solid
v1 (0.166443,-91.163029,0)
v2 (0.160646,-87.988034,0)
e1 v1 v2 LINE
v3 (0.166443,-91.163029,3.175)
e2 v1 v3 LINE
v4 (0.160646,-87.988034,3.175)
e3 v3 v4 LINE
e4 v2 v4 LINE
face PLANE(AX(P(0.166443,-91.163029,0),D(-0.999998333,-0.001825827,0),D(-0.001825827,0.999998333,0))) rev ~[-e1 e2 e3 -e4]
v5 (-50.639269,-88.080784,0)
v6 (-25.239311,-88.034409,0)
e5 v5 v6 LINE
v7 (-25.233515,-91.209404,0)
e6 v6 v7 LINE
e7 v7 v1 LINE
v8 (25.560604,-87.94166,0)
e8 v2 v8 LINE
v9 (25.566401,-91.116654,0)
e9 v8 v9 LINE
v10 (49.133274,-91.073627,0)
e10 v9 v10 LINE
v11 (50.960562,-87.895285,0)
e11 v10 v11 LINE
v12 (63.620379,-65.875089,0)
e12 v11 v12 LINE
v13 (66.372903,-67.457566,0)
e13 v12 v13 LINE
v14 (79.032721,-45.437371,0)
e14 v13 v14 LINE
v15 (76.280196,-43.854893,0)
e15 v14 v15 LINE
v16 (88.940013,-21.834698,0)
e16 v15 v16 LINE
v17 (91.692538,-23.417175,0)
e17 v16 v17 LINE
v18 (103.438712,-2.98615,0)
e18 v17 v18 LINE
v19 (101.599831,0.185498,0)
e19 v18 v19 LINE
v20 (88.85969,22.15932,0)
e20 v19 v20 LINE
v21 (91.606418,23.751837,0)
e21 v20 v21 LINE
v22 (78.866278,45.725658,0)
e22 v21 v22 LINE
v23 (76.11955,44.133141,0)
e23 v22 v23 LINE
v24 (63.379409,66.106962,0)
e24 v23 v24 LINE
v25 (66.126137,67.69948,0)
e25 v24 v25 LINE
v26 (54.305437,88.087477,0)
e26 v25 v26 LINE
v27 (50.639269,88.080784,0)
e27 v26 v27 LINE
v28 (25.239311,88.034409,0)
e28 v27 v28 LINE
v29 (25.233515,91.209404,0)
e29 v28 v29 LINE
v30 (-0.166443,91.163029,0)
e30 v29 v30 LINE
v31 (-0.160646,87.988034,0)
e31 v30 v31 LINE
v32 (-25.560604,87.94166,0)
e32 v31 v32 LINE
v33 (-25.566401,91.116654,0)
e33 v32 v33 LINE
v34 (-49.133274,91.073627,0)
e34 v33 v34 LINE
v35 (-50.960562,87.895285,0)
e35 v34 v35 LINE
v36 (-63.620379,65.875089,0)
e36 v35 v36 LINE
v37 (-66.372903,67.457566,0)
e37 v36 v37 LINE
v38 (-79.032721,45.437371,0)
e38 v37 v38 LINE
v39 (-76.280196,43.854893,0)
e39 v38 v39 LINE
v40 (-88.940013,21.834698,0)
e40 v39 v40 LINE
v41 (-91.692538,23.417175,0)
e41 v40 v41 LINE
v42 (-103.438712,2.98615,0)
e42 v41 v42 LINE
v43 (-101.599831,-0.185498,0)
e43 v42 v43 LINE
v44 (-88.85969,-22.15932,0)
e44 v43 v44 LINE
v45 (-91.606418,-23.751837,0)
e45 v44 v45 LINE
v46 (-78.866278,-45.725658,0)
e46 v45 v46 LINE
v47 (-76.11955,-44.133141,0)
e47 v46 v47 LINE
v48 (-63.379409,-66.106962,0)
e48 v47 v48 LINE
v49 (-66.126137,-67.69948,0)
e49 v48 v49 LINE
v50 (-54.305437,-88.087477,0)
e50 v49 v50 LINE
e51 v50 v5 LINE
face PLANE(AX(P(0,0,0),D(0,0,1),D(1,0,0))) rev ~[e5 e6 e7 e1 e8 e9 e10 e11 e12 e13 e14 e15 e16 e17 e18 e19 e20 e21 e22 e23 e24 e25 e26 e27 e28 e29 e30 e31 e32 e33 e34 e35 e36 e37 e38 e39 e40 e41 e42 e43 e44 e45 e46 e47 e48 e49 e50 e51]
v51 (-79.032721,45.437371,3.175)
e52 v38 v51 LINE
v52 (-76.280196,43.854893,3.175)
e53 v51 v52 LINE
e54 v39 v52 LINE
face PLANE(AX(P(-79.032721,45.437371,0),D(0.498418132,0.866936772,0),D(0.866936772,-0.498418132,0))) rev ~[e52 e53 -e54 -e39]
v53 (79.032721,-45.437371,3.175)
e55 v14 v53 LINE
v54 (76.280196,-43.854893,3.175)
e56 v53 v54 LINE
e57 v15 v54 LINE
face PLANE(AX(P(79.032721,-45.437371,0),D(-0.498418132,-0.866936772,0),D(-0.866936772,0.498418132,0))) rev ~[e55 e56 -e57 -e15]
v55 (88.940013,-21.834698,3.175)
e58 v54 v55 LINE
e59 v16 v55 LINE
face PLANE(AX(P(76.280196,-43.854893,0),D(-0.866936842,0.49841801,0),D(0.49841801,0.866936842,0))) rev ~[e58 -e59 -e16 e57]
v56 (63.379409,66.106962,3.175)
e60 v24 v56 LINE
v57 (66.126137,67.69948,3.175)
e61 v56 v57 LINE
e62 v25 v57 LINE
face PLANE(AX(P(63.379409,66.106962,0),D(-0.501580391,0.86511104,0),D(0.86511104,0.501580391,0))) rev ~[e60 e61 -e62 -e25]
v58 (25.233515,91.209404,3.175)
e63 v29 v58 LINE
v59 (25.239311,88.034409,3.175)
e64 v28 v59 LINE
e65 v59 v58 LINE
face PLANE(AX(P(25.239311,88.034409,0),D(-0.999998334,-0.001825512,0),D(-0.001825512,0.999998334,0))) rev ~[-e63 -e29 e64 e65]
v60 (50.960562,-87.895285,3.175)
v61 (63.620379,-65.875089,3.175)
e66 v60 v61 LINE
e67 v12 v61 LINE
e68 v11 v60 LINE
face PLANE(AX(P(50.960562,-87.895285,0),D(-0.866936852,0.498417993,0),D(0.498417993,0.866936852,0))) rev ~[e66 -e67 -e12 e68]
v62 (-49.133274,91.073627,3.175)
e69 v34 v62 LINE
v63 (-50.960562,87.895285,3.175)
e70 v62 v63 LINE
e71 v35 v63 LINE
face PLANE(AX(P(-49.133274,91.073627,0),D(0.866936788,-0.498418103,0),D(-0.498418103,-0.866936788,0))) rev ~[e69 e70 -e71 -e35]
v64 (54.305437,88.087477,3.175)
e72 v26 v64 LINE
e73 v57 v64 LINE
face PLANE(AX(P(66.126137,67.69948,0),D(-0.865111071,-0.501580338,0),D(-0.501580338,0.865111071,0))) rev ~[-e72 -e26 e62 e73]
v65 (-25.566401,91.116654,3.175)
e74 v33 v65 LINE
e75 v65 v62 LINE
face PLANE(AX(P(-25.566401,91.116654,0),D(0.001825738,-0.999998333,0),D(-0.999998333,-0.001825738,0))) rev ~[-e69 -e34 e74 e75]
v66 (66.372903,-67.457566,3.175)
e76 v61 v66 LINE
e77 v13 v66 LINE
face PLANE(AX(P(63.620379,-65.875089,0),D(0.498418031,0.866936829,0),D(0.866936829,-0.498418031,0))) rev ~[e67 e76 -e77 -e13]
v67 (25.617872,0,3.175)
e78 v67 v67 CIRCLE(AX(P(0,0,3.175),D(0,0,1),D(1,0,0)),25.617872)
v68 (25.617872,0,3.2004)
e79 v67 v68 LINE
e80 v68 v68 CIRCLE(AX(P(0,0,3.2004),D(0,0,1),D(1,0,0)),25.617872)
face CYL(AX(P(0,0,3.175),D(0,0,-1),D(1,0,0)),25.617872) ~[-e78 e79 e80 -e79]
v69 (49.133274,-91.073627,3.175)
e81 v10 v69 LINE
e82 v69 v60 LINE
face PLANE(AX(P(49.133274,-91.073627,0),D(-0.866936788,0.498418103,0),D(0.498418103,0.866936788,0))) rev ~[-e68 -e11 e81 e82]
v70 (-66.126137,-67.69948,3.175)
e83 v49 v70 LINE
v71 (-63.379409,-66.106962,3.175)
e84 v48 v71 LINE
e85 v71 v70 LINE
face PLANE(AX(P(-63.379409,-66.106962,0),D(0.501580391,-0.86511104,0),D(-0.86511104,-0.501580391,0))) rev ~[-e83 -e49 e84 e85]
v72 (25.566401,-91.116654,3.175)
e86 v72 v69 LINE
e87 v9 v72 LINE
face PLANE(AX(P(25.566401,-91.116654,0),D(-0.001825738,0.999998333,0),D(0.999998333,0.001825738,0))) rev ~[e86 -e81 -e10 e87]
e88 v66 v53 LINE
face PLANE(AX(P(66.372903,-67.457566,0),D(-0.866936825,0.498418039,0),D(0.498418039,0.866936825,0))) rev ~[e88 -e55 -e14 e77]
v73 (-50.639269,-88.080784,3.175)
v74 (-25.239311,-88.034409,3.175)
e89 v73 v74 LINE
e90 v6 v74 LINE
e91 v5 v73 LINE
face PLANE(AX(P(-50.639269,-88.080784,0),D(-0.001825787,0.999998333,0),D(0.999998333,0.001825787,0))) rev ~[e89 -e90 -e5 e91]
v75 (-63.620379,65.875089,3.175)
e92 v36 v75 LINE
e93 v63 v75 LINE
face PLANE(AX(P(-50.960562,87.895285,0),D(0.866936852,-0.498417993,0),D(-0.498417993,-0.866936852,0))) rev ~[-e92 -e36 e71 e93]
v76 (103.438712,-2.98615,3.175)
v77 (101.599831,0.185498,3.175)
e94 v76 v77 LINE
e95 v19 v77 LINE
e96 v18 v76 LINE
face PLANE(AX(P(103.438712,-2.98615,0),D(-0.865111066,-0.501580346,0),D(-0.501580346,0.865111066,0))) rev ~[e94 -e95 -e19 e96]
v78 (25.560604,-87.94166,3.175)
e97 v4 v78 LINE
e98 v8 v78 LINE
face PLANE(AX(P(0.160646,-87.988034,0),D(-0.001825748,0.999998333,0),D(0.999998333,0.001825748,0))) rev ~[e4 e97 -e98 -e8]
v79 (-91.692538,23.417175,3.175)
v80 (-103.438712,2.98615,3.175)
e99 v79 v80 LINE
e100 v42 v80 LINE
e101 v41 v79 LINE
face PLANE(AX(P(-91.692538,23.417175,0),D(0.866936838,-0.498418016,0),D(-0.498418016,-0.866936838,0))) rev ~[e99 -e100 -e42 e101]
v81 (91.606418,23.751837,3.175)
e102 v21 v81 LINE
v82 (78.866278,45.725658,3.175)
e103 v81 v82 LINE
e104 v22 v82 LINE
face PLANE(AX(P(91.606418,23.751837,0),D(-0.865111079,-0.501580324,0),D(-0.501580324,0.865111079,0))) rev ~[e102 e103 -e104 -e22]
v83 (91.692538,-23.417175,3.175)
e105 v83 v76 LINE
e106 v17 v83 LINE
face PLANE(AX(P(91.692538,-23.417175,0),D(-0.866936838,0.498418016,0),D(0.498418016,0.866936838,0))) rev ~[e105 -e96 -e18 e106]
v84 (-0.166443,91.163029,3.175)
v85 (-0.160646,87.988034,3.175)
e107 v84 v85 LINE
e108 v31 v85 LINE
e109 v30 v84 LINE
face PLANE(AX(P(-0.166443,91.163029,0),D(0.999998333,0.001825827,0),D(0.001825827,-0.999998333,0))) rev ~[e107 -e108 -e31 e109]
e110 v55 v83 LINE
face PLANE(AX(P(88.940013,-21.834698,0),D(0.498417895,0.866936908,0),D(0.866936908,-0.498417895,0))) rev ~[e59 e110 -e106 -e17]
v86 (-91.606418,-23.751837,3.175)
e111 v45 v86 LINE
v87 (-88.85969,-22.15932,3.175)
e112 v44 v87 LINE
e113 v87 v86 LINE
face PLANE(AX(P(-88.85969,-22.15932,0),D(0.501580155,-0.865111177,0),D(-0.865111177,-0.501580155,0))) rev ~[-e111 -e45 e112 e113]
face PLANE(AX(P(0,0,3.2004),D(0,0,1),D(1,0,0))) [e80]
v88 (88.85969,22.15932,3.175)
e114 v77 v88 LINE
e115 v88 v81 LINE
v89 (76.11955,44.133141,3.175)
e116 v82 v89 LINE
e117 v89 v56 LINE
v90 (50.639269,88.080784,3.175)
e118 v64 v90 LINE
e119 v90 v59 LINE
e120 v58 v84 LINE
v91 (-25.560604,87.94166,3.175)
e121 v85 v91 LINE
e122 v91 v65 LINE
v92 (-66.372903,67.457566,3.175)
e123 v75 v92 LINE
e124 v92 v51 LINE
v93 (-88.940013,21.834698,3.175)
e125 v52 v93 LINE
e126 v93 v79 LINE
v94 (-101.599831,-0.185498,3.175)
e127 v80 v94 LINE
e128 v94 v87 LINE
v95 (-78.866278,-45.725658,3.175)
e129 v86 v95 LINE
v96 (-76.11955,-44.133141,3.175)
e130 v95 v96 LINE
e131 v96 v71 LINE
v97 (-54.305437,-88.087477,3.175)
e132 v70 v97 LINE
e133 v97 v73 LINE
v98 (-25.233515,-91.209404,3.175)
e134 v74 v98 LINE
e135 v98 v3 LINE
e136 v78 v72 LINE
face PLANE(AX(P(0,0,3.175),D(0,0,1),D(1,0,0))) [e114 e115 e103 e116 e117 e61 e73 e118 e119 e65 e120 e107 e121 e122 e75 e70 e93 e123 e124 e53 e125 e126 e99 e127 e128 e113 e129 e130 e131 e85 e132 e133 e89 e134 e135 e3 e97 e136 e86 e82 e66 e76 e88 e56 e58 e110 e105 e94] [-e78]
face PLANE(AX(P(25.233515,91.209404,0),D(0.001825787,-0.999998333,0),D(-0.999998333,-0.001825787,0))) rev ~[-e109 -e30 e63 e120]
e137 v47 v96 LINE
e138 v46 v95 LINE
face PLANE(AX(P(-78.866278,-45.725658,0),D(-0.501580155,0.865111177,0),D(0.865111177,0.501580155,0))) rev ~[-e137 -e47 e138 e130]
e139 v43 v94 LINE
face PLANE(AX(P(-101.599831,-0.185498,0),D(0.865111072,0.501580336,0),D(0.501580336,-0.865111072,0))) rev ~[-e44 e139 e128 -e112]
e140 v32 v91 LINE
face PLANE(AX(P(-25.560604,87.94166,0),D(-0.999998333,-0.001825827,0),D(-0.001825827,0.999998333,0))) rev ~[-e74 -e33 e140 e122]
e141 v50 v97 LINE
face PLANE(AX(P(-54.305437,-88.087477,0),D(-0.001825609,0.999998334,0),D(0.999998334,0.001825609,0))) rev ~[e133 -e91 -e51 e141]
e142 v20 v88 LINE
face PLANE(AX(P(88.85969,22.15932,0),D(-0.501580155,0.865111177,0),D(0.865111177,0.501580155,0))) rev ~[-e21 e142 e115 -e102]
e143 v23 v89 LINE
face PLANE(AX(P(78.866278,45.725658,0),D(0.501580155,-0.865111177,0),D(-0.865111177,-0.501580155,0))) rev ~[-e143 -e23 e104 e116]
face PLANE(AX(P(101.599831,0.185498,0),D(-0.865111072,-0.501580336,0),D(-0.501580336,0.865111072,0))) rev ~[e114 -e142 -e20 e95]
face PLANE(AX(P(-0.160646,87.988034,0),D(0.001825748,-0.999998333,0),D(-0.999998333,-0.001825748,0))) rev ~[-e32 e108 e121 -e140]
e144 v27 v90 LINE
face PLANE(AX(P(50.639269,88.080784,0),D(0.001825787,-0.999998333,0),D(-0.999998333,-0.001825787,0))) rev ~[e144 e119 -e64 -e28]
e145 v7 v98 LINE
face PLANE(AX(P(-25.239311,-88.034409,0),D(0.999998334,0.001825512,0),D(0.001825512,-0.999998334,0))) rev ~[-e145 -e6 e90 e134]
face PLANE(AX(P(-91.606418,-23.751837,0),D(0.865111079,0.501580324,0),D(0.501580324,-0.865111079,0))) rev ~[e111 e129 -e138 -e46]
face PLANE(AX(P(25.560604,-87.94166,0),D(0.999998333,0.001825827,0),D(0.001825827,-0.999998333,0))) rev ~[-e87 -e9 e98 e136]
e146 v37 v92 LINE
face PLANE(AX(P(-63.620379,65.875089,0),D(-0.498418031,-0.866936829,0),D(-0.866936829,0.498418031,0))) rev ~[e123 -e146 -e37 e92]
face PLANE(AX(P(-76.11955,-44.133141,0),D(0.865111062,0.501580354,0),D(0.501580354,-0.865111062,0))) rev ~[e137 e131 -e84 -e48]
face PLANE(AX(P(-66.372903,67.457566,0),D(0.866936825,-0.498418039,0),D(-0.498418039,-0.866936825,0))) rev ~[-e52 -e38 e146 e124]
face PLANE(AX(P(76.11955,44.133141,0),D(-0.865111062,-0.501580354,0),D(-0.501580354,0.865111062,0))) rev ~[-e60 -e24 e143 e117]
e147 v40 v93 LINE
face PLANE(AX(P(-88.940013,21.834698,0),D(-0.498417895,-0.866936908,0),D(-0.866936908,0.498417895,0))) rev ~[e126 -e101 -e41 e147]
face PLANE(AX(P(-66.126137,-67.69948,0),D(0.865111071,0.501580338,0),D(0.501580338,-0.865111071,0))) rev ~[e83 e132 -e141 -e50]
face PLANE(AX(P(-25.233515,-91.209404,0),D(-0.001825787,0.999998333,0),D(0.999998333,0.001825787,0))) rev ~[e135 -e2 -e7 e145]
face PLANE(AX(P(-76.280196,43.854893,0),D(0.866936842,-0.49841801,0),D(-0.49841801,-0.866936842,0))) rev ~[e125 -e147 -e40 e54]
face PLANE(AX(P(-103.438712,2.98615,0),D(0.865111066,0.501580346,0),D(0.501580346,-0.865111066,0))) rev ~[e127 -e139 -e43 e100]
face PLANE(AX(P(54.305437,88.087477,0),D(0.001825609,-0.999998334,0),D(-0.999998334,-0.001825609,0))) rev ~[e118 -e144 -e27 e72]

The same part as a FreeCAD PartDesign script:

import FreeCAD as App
import Part
import Sketcher

V = App.Vector
Q = App.Units.Quantity

doc = App.newDocument("Part")
body = doc.addObject("PartDesign::Body", "Body")

sketch1 = body.newObject("Sketcher::SketchObject", "Sketch")
sketch1.AttachmentSupport = (doc.getObject("XY_Plane"), [""])
sketch1.MapMode = "FlatFace"
sketch1.addGeometry([
    Part.LineSegment(V(50.6, 88.1, 0), V(25.2, 88, 0)),
    Part.LineSegment(V(25.2, 88, 0), V(25.2, 91.2, 0)),
    Part.LineSegment(V(25.2, 91.2, 0), V(-0.2, 91.2, 0)),
    Part.LineSegment(V(-0.2, 91.2, 0), V(-0.2, 88, 0)),
    Part.LineSegment(V(-0.2, 88, 0), V(-25.6, 87.9, 0)),
    Part.LineSegment(V(-25.6, 87.9, 0), V(-25.6, 91.1, 0)),
    Part.LineSegment(V(-25.6, 91.1, 0), V(-49.1, 91.1, 0)),
    Part.LineSegment(V(-49.1, 91.1, 0), V(-51, 87.9, 0)),
    Part.LineSegment(V(-51, 87.9, 0), V(-63.6, 65.9, 0)),
    Part.LineSegment(V(-63.6, 65.9, 0), V(-66.4, 67.5, 0)),
    Part.LineSegment(V(-66.4, 67.5, 0), V(-79, 45.4, 0)),
    Part.LineSegment(V(-79, 45.4, 0), V(-76.3, 43.9, 0)),
    Part.LineSegment(V(-76.3, 43.9, 0), V(-88.9, 21.8, 0)),
    Part.LineSegment(V(-88.9, 21.8, 0), V(-91.7, 23.4, 0)),
    Part.LineSegment(V(-91.7, 23.4, 0), V(-103.4, 3, 0)),
    Part.LineSegment(V(-103.4, 3, 0), V(-101.6, -0.2, 0)),
    Part.LineSegment(V(-101.6, -0.2, 0), V(-88.9, -22.2, 0)),
    Part.LineSegment(V(-88.9, -22.2, 0), V(-91.6, -23.8, 0)),
    Part.LineSegment(V(-91.6, -23.8, 0), V(-78.9, -45.7, 0)),
    Part.LineSegment(V(-78.9, -45.7, 0), V(-76.1, -44.1, 0)),
    Part.LineSegment(V(-76.1, -44.1, 0), V(-63.4, -66.1, 0)),
    Part.LineSegment(V(-63.4, -66.1, 0), V(-66.1, -67.7, 0)),
    Part.LineSegment(V(-66.1, -67.7, 0), V(-54.3, -88.1, 0)),
    Part.LineSegment(V(-54.3, -88.1, 0), V(-50.6, -88.1, 0)),
    Part.LineSegment(V(-50.6, -88.1, 0), V(-25.2, -88, 0)),
    Part.LineSegment(V(-25.2, -88, 0), V(-25.2, -91.2, 0)),
    Part.LineSegment(V(-25.2, -91.2, 0), V(0.2, -91.2, 0)),
    Part.LineSegment(V(0.2, -91.2, 0), V(0.2, -88, 0)),
    Part.LineSegment(V(0.2, -88, 0), V(25.6, -87.9, 0)),
    Part.LineSegment(V(25.6, -87.9, 0), V(25.6, -91.1, 0)),
    Part.LineSegment(V(25.6, -91.1, 0), V(49.1, -91.1, 0)),
    Part.LineSegment(V(49.1, -91.1, 0), V(51, -87.9, 0)),
    Part.LineSegment(V(51, -87.9, 0), V(63.6, -65.9, 0)),
    Part.LineSegment(V(63.6, -65.9, 0), V(66.4, -67.5, 0)),
    Part.LineSegment(V(66.4, -67.5, 0), V(79, -45.4, 0)),
    Part.LineSegment(V(79, -45.4, 0), V(76.3, -43.9, 0)),
    Part.LineSegment(V(76.3, -43.9, 0), V(88.9, -21.8, 0)),
    Part.LineSegment(V(88.9, -21.8, 0), V(91.7, -23.4, 0)),
    Part.LineSegment(V(91.7, -23.4, 0), V(103.4, -3, 0)),
    Part.LineSegment(V(103.4, -3, 0), V(101.6, 0.2, 0)),
    Part.LineSegment(V(101.6, 0.2, 0), V(88.9, 22.2, 0)),
    Part.LineSegment(V(88.9, 22.2, 0), V(91.6, 23.8, 0)),
    Part.LineSegment(V(91.6, 23.8, 0), V(78.9, 45.7, 0)),
    Part.LineSegment(V(78.9, 45.7, 0), V(76.1, 44.1, 0)),
    Part.LineSegment(V(76.1, 44.1, 0), V(63.4, 66.1, 0)),
    Part.LineSegment(V(63.4, 66.1, 0), V(66.1, 67.7, 0)),
    Part.LineSegment(V(66.1, 67.7, 0), V(54.3, 88.1, 0)),
    Part.LineSegment(V(54.3, 88.1, 0), V(50.6, 88.1, 0)),
], False)
sketch1.addConstraint([
    Sketcher.Constraint("Coincident", 0, 2, 1, 1),
    Sketcher.Constraint("Coincident", 1, 2, 2, 1),
    Sketcher.Constraint("Coincident", 2, 2, 3, 1),
    Sketcher.Constraint("Coincident", 3, 2, 4, 1),
    Sketcher.Constraint("Coincident", 4, 2, 5, 1),
    Sketcher.Constraint("Coincident", 5, 2, 6, 1),
    Sketcher.Constraint("Coincident", 6, 2, 7, 1),
    Sketcher.Constraint("Coincident", 7, 2, 8, 1),
    Sketcher.Constraint("Coincident", 8, 2, 9, 1),
    Sketcher.Constraint("Coincident", 9, 2, 10, 1),
    Sketcher.Constraint("Coincident", 10, 2, 11, 1),
    Sketcher.Constraint("Coincident", 11, 2, 12, 1),
    Sketcher.Constraint("Coincident", 12, 2, 13, 1),
    Sketcher.Constraint("Coincident", 13, 2, 14, 1),
    Sketcher.Constraint("Coincident", 14, 2, 15, 1),
    Sketcher.Constraint("Coincident", 15, 2, 16, 1),
    Sketcher.Constraint("Coincident", 16, 2, 17, 1),
    Sketcher.Constraint("Coincident", 17, 2, 18, 1),
    Sketcher.Constraint("Coincident", 18, 2, 19, 1),
    Sketcher.Constraint("Coincident", 19, 2, 20, 1),
    Sketcher.Constraint("Coincident", 20, 2, 21, 1),
    Sketcher.Constraint("Coincident", 21, 2, 22, 1),
    Sketcher.Constraint("Coincident", 22, 2, 23, 1),
    Sketcher.Constraint("Coincident", 23, 2, 24, 1),
    Sketcher.Constraint("Coincident", 24, 2, 25, 1),
    Sketcher.Constraint("Coincident", 25, 2, 26, 1),
    Sketcher.Constraint("Coincident", 26, 2, 27, 1),
    Sketcher.Constraint("Coincident", 27, 2, 28, 1),
    Sketcher.Constraint("Coincident", 28, 2, 29, 1),
    Sketcher.Constraint("Coincident", 29, 2, 30, 1),
    Sketcher.Constraint("Coincident", 30, 2, 31, 1),
    Sketcher.Constraint("Coincident", 31, 2, 32, 1),
    Sketcher.Constraint("Coincident", 32, 2, 33, 1),
    Sketcher.Constraint("Coincident", 33, 2, 34, 1),
    Sketcher.Constraint("Coincident", 34, 2, 35, 1),
    Sketcher.Constraint("Coincident", 35, 2, 36, 1),
    Sketcher.Constraint("Coincident", 36, 2, 37, 1),
    Sketcher.Constraint("Coincident", 37, 2, 38, 1),
    Sketcher.Constraint("Coincident", 38, 2, 39, 1),
    Sketcher.Constraint("Coincident", 39, 2, 40, 1),
    Sketcher.Constraint("Coincident", 40, 2, 41, 1),
    Sketcher.Constraint("Coincident", 41, 2, 42, 1),
    Sketcher.Constraint("Coincident", 42, 2, 43, 1),
    Sketcher.Constraint("Coincident", 43, 2, 44, 1),
    Sketcher.Constraint("Coincident", 44, 2, 45, 1),
    Sketcher.Constraint("Coincident", 45, 2, 46, 1),
    Sketcher.Constraint("Coincident", 46, 2, 47, 1),
    Sketcher.Constraint("Coincident", 47, 2, 0, 1),
    Sketcher.Constraint("Symmetric", 0, 2, 24, 2, -1, 1),
    Sketcher.Constraint("Symmetric", 1, 2, 25, 2, -1, 1),
    Sketcher.Constraint("Symmetric", 2, 2, 26, 2, -1, 1),
    Sketcher.Constraint("Symmetric", 3, 2, 27, 2, -1, 1),
    Sketcher.Constraint("Symmetric", 4, 2, 28, 2, -1, 1),
    Sketcher.Constraint("Symmetric", 5, 2, 29, 2, -1, 1),
    Sketcher.Constraint("Symmetric", 6, 2, 30, 2, -1, 1),
    Sketcher.Constraint("Symmetric", 7, 2, 31, 2, -1, 1),
    Sketcher.Constraint("Symmetric", 8, 2, 32, 2, -1, 1),
    Sketcher.Constraint("Symmetric", 9, 2, 33, 2, -1, 1),
    Sketcher.Constraint("Symmetric", 10, 2, 34, 2, -1, 1),
    Sketcher.Constraint("Symmetric", 11, 2, 35, 2, -1, 1),
    Sketcher.Constraint("Symmetric", 12, 2, 36, 2, -1, 1),
    Sketcher.Constraint("Symmetric", 13, 2, 37, 2, -1, 1),
    Sketcher.Constraint("Symmetric", 14, 2, 38, 2, -1, 1),
    Sketcher.Constraint("Symmetric", 15, 2, 39, 2, -1, 1),
    Sketcher.Constraint("Symmetric", 16, 2, 40, 2, -1, 1),
    Sketcher.Constraint("Symmetric", 17, 2, 41, 2, -1, 1),
    Sketcher.Constraint("Symmetric", 18, 2, 42, 2, -1, 1),
    Sketcher.Constraint("Symmetric", 19, 2, 43, 2, -1, 1),
    Sketcher.Constraint("Symmetric", 20, 2, 44, 2, -1, 1),
    Sketcher.Constraint("Symmetric", 21, 2, 45, 2, -1, 1),
    Sketcher.Constraint("Symmetric", 22, 2, 46, 2, -1, 1),
    Sketcher.Constraint("Symmetric", 23, 2, 47, 2, -1, 1),
    Sketcher.Constraint("Perpendicular", 0, 1),
    Sketcher.Constraint("Perpendicular", 1, 2),
    Sketcher.Constraint("Perpendicular", 2, 3),
    Sketcher.Constraint("Perpendicular", 3, 4),
    Sketcher.Constraint("Perpendicular", 4, 5),
    Sketcher.Constraint("Perpendicular", 5, 6),
    Sketcher.Constraint("Parallel", 7, 8),
    Sketcher.Constraint("Perpendicular", 8, 9),
    Sketcher.Constraint("Perpendicular", 9, 10),
    Sketcher.Constraint("Perpendicular", 10, 11),
    Sketcher.Constraint("Perpendicular", 11, 12),
    Sketcher.Constraint("Perpendicular", 12, 13),
    Sketcher.Constraint("Perpendicular", 13, 14),
    Sketcher.Constraint("Parallel", 15, 16),
    Sketcher.Constraint("Perpendicular", 16, 17),
    Sketcher.Constraint("Perpendicular", 17, 18),
    Sketcher.Constraint("Perpendicular", 18, 19),
    Sketcher.Constraint("Perpendicular", 19, 20),
    Sketcher.Constraint("Perpendicular", 20, 21),
    Sketcher.Constraint("Perpendicular", 21, 22),
    Sketcher.Constraint("Parallel", 6, 23),
    Sketcher.Constraint("Equal", 0, 2),
    Sketcher.Constraint("Equal", 1, 3),
    Sketcher.Constraint("Equal", 2, 4),
    Sketcher.Constraint("Equal", 3, 5),
    Sketcher.Constraint("Equal", 4, 8),
    Sketcher.Constraint("Equal", 5, 9),
    Sketcher.Constraint("Equal", 8, 10),
    Sketcher.Constraint("Equal", 9, 11),
    Sketcher.Constraint("Equal", 10, 12),
    Sketcher.Constraint("Equal", 11, 13),
    Sketcher.Constraint("Equal", 6, 14),
    Sketcher.Constraint("Equal", 7, 15),
    Sketcher.Constraint("Equal", 12, 16),
    Sketcher.Constraint("Equal", 13, 17),
    Sketcher.Constraint("Equal", 16, 18),
    Sketcher.Constraint("Equal", 17, 19),
    Sketcher.Constraint("Equal", 18, 20),
    Sketcher.Constraint("Equal", 19, 21),
    Sketcher.Constraint("Equal", 14, 22),
    Sketcher.Constraint("Equal", 15, 23),
    Sketcher.Constraint("Distance", 0, Q("1 in")),
    Sketcher.Constraint("Distance", 1, Q("0.125 in")),
    Sketcher.Constraint("DistanceX", 5, 2, -1, 1, Q("25.566401 mm")),
    Sketcher.Constraint("DistanceY", 6, 2, 2, 2, Q("0.089402 mm")),
    Sketcher.Constraint("DistanceX", 9, 2, 4, 2, Q("40.812299 mm")),
    Sketcher.Constraint("DistanceX", 14, 2, 12, 2, Q("14.498699 mm")),
    Sketcher.Constraint("DistanceX", 21, 2, 22, 2, Q("11.8207 mm")),
])
pad1 = body.newObject("PartDesign::Pad", "Pad")
pad1.Profile = sketch1
pad1.Length = Q("0.125 in")

sketch2 = body.newObject("Sketcher::SketchObject", "Sketch001")
sketch2.AttachmentSupport = (doc.getObject("XY_Plane"), [""])
sketch2.MapMode = "FlatFace"
sketch2.AttachmentOffset = App.Placement(V(0, 0, 0.125 * 25.4), App.Rotation())
sketch2.addGeometry(Part.Circle(V(0, 0, 0), V(0, 0, 1), 26), False)
sketch2.addConstraint([
    Sketcher.Constraint("Coincident", 0, 3, -1, 1),
    Sketcher.Constraint("Diameter", 0, Q("51.235744 mm")),
])
pad2 = body.newObject("PartDesign::Pad", "Pad001")
pad2.Profile = sketch2
pad2.Length = Q("0.001 in")

doc.recompute()
